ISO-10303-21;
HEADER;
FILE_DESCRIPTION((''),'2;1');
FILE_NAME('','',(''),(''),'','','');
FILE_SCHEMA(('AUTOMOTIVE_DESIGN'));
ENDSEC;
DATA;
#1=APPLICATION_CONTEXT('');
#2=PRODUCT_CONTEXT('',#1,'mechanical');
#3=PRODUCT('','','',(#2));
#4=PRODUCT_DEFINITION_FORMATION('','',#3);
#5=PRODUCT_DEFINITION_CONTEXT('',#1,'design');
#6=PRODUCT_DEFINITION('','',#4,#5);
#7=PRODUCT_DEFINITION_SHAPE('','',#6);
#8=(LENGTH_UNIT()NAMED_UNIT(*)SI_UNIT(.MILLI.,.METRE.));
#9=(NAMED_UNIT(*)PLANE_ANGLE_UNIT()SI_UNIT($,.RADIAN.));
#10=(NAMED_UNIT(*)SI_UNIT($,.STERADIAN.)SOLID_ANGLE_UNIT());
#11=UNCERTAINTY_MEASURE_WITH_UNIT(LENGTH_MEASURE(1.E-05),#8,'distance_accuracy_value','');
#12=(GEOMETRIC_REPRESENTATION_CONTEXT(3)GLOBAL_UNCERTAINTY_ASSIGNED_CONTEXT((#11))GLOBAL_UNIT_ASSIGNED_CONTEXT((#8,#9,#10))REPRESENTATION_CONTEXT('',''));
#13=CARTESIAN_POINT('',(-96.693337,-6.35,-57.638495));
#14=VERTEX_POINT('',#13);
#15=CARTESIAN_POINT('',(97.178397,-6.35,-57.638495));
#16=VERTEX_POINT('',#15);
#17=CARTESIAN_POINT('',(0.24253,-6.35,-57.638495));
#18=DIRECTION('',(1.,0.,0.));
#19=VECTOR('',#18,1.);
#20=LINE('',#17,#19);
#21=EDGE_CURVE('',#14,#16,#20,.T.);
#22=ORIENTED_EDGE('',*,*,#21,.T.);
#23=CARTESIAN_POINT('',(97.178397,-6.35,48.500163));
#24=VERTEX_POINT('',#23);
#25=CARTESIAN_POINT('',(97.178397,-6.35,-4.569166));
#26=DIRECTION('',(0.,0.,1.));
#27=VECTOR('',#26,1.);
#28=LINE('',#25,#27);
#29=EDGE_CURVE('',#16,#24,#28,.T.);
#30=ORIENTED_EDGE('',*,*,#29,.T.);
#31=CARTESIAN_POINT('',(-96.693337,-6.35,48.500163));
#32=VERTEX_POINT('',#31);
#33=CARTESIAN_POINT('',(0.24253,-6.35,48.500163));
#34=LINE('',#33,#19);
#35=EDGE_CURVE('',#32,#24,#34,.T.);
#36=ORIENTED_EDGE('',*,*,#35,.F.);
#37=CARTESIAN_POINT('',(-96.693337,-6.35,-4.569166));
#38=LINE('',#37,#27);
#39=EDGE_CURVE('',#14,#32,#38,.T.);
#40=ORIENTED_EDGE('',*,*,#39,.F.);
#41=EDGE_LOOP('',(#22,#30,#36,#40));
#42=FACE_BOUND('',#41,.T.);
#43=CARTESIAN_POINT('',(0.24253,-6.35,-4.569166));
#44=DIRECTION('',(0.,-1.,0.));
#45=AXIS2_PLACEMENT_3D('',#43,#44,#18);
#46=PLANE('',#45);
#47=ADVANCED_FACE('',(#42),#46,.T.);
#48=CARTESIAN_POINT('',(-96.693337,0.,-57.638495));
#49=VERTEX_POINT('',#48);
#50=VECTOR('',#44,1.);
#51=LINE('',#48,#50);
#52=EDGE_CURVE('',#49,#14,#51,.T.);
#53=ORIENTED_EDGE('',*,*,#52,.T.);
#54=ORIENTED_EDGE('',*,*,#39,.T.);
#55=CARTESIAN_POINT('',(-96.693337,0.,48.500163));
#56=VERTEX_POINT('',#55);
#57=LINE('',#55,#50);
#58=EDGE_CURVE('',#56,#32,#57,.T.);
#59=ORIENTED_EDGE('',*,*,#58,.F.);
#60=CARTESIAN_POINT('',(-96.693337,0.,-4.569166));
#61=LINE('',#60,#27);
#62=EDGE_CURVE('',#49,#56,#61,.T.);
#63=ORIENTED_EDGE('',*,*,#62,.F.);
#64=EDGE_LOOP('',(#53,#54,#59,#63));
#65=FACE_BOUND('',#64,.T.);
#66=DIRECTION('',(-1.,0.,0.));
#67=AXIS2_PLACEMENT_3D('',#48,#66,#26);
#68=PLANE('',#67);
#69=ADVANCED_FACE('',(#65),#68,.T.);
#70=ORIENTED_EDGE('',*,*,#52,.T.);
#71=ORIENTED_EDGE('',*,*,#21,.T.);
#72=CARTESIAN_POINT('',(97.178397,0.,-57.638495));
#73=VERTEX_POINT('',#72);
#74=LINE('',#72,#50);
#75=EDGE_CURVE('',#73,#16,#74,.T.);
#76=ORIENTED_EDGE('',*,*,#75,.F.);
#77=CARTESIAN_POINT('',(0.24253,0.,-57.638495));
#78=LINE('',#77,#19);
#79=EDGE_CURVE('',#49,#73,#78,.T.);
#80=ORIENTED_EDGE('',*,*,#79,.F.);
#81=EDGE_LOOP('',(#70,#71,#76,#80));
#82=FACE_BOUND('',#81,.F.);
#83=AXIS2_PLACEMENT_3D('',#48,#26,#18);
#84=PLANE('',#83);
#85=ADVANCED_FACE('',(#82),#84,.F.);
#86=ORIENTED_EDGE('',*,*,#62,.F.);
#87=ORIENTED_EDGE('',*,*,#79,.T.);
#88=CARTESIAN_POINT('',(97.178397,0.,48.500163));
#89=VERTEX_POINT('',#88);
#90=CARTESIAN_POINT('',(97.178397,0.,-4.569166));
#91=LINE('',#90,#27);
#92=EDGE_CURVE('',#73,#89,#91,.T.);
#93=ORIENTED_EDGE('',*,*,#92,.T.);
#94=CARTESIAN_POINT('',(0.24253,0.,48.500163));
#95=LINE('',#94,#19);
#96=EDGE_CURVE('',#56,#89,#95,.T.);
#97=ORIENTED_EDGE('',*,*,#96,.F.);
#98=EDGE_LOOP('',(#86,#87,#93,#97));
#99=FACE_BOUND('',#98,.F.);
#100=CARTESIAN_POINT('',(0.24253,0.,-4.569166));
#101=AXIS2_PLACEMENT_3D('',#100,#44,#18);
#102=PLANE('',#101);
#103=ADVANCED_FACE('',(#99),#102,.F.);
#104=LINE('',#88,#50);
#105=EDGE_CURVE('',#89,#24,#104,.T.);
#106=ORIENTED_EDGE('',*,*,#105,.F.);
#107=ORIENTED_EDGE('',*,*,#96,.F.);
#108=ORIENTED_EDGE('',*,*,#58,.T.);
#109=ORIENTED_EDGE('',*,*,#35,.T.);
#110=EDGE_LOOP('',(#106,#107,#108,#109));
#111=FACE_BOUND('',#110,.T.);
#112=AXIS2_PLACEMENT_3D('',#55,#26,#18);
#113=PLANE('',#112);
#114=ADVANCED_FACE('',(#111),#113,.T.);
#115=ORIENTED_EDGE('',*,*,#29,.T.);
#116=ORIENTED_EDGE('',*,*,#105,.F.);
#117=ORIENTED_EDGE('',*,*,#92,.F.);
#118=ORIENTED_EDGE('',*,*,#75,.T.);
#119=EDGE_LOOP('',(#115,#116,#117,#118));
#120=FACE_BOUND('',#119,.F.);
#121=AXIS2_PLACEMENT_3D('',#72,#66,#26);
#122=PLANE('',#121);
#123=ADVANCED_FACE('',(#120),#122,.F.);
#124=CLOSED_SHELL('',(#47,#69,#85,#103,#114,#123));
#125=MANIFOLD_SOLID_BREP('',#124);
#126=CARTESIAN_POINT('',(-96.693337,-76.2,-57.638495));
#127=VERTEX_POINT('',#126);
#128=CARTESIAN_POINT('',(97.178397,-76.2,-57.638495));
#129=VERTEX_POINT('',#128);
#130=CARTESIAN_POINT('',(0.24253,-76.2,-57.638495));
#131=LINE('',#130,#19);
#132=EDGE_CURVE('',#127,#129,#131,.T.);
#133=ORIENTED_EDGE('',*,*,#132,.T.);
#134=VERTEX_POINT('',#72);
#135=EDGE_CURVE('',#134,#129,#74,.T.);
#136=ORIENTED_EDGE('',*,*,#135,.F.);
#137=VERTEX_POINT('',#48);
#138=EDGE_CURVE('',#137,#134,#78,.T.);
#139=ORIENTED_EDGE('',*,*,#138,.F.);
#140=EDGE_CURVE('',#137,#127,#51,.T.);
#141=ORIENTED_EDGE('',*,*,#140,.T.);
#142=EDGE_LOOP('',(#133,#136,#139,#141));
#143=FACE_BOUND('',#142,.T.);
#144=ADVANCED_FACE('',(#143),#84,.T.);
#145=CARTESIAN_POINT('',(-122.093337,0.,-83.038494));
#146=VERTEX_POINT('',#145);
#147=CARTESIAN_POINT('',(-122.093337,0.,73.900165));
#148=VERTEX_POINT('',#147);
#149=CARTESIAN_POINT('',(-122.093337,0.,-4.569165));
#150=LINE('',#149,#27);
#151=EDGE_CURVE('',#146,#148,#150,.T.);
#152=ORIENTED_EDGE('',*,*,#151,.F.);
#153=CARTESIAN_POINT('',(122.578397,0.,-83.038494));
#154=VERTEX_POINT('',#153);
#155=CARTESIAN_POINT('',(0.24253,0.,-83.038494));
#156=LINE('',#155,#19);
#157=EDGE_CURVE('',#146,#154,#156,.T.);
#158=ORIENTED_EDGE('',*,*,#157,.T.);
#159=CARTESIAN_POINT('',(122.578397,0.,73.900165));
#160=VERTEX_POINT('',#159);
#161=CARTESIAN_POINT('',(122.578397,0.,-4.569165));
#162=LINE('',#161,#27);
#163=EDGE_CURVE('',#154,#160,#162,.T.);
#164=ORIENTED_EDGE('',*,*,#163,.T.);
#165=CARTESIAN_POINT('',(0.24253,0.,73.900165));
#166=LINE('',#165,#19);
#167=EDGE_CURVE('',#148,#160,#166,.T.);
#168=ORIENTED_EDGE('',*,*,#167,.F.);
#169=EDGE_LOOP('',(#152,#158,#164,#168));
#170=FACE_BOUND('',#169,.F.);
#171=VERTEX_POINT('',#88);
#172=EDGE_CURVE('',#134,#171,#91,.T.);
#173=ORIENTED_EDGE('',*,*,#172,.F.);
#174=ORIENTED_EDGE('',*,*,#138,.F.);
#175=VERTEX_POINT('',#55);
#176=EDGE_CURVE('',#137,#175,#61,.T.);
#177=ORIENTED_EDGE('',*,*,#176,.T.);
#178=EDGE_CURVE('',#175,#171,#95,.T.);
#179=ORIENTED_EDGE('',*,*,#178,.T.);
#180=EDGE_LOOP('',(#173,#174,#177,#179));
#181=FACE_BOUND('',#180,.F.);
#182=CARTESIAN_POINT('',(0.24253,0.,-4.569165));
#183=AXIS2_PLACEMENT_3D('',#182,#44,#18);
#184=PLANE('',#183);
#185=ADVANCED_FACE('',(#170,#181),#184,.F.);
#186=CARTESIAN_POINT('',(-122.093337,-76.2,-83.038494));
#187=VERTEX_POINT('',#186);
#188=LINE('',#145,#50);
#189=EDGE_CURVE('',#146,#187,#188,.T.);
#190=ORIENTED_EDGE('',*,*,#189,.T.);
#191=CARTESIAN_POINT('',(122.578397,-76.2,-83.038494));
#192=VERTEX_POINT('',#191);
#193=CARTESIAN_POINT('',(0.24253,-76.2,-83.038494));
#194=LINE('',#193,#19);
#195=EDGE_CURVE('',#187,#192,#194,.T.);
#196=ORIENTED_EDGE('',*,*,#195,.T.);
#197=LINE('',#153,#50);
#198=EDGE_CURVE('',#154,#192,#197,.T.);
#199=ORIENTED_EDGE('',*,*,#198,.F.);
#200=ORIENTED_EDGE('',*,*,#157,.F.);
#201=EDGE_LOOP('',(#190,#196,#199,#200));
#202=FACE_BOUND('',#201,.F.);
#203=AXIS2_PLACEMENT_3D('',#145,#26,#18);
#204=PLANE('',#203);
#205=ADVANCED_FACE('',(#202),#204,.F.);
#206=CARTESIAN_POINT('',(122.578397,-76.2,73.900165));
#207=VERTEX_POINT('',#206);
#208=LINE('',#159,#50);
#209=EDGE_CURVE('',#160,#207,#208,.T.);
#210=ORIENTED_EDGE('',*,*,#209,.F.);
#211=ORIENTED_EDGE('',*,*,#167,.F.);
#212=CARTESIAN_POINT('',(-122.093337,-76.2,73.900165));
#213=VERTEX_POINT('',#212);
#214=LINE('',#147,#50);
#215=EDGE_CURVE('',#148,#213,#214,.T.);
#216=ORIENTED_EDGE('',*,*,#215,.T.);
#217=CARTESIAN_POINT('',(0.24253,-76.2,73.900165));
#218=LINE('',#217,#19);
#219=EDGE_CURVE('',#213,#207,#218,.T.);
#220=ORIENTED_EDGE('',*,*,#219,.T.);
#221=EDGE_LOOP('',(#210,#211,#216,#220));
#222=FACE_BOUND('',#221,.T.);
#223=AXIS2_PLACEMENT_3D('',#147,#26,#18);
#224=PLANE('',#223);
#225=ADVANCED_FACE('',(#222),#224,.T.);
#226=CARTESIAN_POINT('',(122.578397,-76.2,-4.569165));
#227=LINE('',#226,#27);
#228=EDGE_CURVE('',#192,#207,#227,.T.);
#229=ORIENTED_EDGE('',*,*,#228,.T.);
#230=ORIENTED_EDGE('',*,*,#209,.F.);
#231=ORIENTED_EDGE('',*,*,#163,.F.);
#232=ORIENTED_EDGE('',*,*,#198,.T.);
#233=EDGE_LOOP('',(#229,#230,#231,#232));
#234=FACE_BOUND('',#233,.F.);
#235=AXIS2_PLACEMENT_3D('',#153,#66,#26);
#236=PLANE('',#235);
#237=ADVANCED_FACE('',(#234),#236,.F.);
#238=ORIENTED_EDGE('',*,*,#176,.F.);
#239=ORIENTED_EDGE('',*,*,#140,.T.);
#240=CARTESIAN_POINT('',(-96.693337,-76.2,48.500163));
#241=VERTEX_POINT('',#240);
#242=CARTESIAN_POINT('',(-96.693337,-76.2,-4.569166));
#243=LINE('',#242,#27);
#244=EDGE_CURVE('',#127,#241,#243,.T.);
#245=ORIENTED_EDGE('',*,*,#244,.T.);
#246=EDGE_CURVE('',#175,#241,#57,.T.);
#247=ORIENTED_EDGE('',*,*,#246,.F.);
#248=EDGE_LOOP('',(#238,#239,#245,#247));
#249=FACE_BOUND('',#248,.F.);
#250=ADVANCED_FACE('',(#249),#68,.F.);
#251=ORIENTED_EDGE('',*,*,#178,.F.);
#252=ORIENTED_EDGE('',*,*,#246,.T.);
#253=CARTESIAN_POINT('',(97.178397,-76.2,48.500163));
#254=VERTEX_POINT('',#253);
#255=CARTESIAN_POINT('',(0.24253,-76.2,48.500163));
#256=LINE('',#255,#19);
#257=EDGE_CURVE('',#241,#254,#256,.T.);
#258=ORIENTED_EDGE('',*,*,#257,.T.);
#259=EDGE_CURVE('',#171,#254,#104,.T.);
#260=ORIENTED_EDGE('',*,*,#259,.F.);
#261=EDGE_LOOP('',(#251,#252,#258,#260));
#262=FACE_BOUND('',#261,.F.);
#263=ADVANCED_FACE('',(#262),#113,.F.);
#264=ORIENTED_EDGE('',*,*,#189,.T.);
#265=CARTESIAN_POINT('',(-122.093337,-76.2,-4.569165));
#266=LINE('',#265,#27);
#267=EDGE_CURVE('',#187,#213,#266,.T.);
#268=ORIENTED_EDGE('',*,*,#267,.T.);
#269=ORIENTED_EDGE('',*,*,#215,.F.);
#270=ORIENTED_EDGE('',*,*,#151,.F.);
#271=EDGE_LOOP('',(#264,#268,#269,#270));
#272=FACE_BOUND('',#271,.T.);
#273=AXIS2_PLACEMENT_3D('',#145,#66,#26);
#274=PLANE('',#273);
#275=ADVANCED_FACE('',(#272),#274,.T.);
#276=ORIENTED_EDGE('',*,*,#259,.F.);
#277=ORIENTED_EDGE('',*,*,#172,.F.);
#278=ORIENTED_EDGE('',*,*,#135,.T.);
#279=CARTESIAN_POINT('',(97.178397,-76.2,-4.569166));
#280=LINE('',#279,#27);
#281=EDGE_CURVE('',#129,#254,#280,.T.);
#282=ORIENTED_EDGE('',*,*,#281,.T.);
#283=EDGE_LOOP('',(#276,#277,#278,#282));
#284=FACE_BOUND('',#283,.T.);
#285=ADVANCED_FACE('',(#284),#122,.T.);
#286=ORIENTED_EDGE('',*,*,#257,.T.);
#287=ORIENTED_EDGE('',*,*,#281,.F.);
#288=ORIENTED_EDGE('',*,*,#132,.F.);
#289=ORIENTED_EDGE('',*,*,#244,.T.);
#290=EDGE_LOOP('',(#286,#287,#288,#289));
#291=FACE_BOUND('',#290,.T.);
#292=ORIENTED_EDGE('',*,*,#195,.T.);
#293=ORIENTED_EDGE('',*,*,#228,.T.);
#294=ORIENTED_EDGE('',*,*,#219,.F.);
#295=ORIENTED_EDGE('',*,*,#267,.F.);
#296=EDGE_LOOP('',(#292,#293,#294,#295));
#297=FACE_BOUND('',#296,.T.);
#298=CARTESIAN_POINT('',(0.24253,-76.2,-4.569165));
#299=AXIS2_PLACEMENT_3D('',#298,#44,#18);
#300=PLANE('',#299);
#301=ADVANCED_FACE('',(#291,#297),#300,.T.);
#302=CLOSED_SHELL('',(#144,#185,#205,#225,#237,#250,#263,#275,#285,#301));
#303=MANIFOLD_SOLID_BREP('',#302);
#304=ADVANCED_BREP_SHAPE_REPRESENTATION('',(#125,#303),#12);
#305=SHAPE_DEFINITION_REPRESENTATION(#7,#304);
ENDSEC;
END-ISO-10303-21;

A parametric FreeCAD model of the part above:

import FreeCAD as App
import Part
import Sketcher

V = App.Vector
Q = App.Units.Quantity


def add_polygon(sketch, points):
    """Adds a closed chain of lines whose ends are joined by coincident constraints."""
    first, n = sketch.GeometryCount, len(points)
    for a, b in zip(points, points[1:] + points[:1]):
        sketch.addGeometry(Part.LineSegment(App.Vector(*a, 0), App.Vector(*b, 0)), False)
    for i in range(n):
        sketch.addConstraint(Sketcher.Constraint("Coincident", first + i, 2, first + (i + 1) % n, 1))

doc = App.newDocument("Part")
body = doc.addObject("PartDesign::Body", "Body")

# Sketch on XZ plane
sketch1 = body.newObject("Sketcher::SketchObject", "Sketch")
sketch1.AttachmentSupport = (doc.getObject("XZ_Plane"), [""])
sketch1.MapMode = "FlatFace"
add_polygon(sketch1, [(-97, 49), (-97, -58), (97, -58), (97, 49)])  # lines 0-3
sketch1.addConstraint([
    Sketcher.Constraint("Vertical", 0),
    Sketcher.Constraint("Horizontal", 1),
    Sketcher.Constraint("Vertical", 2),
    Sketcher.Constraint("Horizontal", 3),
    Sketcher.Constraint("DistanceY", 0, 2, 0, 1, Q("106.138659 mm")),
    Sketcher.Constraint("DistanceX", 1, 1, 1, 2, Q("193.871734 mm")),
    Sketcher.Constraint("DistanceX", 0, 2, -1, 1, Q("96.693337 mm")),
    Sketcher.Constraint("DistanceY", 0, 2, -1, 1, Q("57.638495 mm")),
])
pad1 = body.newObject("PartDesign::Pad", "Pad")
pad1.Profile = sketch1
pad1.Length = Q("0.25 in")
body2 = doc.addObject("PartDesign::Body", "Body001")

# Sketch on XZ plane
sketch2 = body2.newObject("Sketcher::SketchObject", "Sketch001")
sketch2.AttachmentSupport = (doc.getObject("XZ_Plane001"), [""])
sketch2.MapMode = "FlatFace"
add_polygon(sketch2, [(-122, 74), (-122, -83), (123, -83), (123, 74)])  # lines 0-3
add_polygon(sketch2, [(97, -58), (-97, -58), (-97, 49), (97, 49)])  # lines 4-7
sketch2.addConstraint([
    Sketcher.Constraint("Vertical", 0),
    Sketcher.Constraint("Horizontal", 1),
    Sketcher.Constraint("Vertical", 2),
    Sketcher.Constraint("Horizontal", 3),
    Sketcher.Constraint("Horizontal", 4),
    Sketcher.Constraint("Vertical", 5),
    Sketcher.Constraint("Horizontal", 6),
    Sketcher.Constraint("Vertical", 7),
    Sketcher.Constraint("DistanceX", 0, 2, 4, 2, Q("1 in")),
    Sketcher.Constraint("DistanceY", 0, 2, 4, 2, Q("1 in")),
    Sketcher.Constraint("DistanceY", 5, 2, 3, 2, Q("1 in")),
    Sketcher.Constraint("DistanceX", 6, 2, 2, 2, Q("1 in")),
    Sketcher.Constraint("DistanceY", 0, 2, 0, 1, Q("156.938659 mm")),
    Sketcher.Constraint("DistanceX", 1, 1, 1, 2, Q("244.671734 mm")),
    Sketcher.Constraint("DistanceX", 0, 2, -1, 1, Q("122.093337 mm")),
    Sketcher.Constraint("DistanceY", 0, 2, -1, 1, Q("83.038494 mm")),
])
pad2 = body2.newObject("PartDesign::Pad", "Pad001")
pad2.Profile = sketch2
pad2.Length = Q("3 in")

doc.recompute()
